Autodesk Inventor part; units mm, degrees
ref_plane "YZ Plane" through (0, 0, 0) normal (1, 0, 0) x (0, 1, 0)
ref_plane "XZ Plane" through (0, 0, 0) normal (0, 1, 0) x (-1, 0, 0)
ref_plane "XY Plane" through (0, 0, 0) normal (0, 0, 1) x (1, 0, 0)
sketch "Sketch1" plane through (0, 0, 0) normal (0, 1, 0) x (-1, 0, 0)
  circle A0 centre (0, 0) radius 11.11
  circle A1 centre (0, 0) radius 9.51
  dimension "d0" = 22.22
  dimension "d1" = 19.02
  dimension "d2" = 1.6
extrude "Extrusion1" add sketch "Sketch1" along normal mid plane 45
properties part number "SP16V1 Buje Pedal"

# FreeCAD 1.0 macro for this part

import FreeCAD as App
import Part
import Sketcher

doc = App.newDocument("Part")
body = doc.addObject("PartDesign::Body", "Body")

# Sketch on XZ plane
sketch1 = doc.addObject("Sketcher::SketchObject", "Sketch")
body.addObject(sketch1)
sketch1.AttachmentSupport = (doc.XZ_Plane, [""])
sketch1.MapMode = "FlatFace"
sketch1.addGeometry(Part.Circle(App.Vector(0, 0, 0), App.Vector(0, 0, 1), 11), False)
sketch1.addGeometry(Part.Circle(App.Vector(0, 0, 0), App.Vector(0, 0, 1), 10), False)
sketch1.addConstraint(Sketcher.Constraint("Coincident", 0, 3, -1, 1))
sketch1.addConstraint(Sketcher.Constraint("Coincident", 1, 3, -1, 1))
sketch1.addConstraint(Sketcher.Constraint("Diameter", 0, 22.22))
sketch1.addConstraint(Sketcher.Constraint("Diameter", 1, 19.02))
pad1 = doc.addObject("PartDesign::Pad", "Pad")
body.addObject(pad1)
pad1.Profile = sketch1
pad1.Length = 45
pad1.Midplane = True

doc.recompute()
